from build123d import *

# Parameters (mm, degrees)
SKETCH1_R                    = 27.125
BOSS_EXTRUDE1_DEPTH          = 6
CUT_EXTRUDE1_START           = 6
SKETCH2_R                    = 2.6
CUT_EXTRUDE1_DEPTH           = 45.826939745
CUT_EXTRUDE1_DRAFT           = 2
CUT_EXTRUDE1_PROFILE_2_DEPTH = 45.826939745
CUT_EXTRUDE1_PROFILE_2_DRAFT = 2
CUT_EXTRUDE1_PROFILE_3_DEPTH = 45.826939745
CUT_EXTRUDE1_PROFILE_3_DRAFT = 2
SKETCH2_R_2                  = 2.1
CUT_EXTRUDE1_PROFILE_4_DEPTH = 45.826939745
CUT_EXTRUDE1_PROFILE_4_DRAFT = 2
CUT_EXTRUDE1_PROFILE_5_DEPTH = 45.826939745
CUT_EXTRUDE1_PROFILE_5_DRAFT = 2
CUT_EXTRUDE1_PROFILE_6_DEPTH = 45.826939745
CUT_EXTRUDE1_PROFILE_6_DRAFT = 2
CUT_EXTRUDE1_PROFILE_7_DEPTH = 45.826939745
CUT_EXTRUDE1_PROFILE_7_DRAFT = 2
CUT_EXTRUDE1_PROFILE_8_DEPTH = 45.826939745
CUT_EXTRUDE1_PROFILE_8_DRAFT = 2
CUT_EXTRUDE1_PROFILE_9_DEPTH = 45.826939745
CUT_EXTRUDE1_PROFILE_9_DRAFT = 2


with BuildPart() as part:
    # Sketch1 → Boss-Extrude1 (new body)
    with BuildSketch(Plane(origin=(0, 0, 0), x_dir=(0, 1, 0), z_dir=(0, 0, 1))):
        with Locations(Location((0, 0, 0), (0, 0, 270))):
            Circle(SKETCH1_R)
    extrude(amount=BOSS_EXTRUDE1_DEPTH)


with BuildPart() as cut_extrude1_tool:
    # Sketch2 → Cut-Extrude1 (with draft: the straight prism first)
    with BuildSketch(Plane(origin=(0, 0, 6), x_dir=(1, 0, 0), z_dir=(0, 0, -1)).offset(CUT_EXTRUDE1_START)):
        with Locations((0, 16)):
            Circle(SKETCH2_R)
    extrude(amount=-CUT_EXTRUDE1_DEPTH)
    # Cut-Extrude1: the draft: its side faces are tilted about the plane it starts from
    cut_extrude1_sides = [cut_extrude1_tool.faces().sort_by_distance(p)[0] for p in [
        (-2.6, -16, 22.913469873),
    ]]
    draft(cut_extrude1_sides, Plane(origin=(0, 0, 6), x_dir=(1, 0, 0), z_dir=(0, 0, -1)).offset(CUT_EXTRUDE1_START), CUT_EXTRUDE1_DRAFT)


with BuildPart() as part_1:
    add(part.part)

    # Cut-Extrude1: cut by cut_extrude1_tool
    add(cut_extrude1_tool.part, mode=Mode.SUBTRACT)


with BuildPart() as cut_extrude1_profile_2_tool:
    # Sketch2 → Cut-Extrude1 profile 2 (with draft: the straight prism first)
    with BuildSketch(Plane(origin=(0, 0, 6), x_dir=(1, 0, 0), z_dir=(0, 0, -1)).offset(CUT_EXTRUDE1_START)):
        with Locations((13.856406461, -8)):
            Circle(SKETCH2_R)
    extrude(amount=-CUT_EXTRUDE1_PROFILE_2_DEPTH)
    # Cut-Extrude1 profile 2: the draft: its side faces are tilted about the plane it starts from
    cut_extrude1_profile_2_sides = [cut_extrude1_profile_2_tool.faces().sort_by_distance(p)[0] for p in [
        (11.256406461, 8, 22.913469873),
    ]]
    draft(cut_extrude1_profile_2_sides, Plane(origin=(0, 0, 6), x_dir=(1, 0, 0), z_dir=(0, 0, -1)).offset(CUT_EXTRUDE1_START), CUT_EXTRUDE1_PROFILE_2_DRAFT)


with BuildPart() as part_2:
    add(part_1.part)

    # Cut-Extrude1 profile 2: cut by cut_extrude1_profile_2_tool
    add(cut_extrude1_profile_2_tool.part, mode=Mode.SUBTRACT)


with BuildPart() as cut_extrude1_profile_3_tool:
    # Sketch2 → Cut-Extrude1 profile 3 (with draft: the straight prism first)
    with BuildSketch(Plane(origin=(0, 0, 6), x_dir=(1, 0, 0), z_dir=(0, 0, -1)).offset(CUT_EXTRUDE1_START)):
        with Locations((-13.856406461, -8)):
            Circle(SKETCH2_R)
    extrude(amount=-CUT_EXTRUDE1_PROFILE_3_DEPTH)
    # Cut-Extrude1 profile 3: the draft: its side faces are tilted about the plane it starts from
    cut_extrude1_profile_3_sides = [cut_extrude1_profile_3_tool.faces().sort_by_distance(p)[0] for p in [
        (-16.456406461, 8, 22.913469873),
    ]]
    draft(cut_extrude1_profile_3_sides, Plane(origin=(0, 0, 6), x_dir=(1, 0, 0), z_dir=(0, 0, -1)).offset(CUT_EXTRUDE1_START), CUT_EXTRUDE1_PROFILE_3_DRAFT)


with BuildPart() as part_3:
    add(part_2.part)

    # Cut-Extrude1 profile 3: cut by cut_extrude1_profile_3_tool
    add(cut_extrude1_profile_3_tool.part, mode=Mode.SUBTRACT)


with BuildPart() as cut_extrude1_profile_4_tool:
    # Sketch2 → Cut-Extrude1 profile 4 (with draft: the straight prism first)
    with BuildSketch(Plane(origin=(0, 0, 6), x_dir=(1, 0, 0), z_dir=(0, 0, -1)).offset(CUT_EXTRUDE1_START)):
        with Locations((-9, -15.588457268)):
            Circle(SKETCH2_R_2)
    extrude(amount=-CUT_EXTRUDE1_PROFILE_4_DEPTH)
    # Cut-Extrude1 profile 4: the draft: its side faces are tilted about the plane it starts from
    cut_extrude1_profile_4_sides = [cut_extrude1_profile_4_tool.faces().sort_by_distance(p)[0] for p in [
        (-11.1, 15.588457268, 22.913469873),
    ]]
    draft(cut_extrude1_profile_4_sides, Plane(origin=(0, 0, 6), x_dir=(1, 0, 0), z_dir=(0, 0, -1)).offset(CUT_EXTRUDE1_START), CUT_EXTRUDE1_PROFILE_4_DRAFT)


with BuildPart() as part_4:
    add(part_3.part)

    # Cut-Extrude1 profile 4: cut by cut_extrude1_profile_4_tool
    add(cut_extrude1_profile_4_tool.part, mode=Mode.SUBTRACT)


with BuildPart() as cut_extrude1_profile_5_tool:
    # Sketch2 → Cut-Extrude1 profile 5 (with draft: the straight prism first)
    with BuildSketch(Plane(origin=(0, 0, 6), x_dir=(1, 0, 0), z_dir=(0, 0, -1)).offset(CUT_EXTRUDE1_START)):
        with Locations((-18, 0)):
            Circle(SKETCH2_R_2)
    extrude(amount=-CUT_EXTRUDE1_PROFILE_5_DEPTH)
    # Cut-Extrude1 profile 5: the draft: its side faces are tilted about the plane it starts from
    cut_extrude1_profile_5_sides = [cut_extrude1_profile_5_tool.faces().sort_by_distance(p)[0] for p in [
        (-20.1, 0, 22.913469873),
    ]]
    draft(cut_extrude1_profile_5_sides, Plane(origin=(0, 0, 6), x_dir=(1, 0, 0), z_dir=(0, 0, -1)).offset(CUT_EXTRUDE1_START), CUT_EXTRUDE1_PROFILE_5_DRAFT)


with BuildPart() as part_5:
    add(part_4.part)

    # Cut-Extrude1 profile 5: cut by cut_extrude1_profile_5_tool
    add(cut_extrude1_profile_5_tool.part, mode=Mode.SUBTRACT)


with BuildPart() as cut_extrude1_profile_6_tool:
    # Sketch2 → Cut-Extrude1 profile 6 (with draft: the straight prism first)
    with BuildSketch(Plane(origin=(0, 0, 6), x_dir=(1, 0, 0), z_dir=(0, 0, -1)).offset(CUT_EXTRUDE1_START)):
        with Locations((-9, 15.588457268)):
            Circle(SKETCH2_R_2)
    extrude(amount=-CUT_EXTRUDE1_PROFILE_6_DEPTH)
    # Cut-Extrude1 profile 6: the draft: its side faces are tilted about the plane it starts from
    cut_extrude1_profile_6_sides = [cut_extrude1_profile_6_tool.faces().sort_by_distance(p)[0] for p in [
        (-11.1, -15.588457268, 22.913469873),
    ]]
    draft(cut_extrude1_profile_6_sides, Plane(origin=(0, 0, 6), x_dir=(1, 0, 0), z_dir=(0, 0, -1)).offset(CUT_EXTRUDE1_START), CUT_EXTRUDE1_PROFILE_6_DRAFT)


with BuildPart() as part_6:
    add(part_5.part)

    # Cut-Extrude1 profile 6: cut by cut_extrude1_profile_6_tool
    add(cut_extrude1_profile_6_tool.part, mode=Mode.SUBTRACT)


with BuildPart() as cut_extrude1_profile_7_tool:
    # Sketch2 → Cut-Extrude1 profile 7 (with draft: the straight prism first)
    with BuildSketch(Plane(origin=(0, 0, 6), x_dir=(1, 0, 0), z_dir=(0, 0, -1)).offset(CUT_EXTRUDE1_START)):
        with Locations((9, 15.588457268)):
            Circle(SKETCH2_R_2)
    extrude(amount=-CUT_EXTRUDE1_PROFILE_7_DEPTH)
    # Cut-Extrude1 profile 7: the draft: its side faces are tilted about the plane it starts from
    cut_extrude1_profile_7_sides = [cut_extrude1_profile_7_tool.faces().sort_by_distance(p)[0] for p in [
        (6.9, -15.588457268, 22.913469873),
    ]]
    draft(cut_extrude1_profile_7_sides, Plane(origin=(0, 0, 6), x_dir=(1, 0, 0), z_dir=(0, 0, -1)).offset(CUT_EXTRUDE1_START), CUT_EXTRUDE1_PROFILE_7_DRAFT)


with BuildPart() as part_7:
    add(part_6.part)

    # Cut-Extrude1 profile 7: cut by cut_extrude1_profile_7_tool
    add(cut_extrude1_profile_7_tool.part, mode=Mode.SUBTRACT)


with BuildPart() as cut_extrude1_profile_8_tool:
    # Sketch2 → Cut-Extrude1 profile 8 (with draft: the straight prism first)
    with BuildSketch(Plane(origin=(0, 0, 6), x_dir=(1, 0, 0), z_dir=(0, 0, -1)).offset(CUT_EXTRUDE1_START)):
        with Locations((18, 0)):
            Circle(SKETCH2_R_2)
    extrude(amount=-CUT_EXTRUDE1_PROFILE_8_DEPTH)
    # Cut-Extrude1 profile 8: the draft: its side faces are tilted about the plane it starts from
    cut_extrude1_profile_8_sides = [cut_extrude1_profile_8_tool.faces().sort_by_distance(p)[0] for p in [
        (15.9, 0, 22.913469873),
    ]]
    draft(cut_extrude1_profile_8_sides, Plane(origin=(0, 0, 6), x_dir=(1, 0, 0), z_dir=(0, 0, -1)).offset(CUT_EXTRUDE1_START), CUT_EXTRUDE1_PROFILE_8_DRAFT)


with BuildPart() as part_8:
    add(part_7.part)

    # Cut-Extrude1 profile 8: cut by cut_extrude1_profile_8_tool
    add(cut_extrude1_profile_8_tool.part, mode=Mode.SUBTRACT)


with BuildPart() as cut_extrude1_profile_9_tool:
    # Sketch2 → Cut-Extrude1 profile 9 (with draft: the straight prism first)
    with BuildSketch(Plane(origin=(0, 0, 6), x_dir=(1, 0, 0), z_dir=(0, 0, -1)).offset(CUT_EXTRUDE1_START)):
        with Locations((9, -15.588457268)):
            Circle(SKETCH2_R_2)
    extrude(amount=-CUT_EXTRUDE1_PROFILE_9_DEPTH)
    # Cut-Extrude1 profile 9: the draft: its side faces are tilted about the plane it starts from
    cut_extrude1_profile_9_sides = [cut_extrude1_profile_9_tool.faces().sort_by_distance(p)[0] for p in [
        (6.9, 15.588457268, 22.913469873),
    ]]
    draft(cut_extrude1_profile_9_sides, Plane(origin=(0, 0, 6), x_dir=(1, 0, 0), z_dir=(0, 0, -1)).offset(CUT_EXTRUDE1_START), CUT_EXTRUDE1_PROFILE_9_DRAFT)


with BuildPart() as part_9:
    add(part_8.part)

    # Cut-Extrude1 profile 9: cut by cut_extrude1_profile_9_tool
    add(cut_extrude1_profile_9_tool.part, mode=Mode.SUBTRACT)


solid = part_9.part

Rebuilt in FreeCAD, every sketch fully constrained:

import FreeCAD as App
import Part
import Sketcher


def faces_at(feature, points):
    """Names of the faces that lie closest to the given points."""
    faces = feature.Shape.Faces
    near = lambda p: min(range(len(faces)), key=lambda i: faces[i].distToShape(Part.Vertex(*p))[0])
    return sorted({f"Face{near(p) + 1}" for p in points})

doc = App.newDocument("Part")
body = doc.addObject("PartDesign::Body", "Body")

sketch1 = body.newObject("Sketcher::SketchObject", "Sketch")
sketch1.AttachmentSupport = (doc.getObject("XY_Plane"), [""])
sketch1.MapMode = "FlatFace"
sketch1.addGeometry(Part.Circle(App.Vector(0, 0, 0), App.Vector(0, 0, 1), 27), False)
sketch1.addConstraint([
    Sketcher.Constraint("Coincident", 0, 3, -1, 1),
    Sketcher.Constraint("Diameter", 0, 54.25),
])
pad1 = body.newObject("PartDesign::Pad", "Pad")
pad1.Profile = sketch1
pad1.Length = 6
body2 = doc.addObject("PartDesign::Body", "Body001")

sketch2 = body2.newObject("Sketcher::SketchObject", "Sketch001")
sketch2.AttachmentSupport = (doc.getObject("XY_Plane001"), [""])
sketch2.MapMode = "FlatFace"
sketch2.addGeometry(Part.Circle(App.Vector(0, -16, 0), App.Vector(0, 0, 1), 2.6), False)
sketch2.addConstraint([
    Sketcher.Constraint("PointOnObject", 0, 3, -2),
    Sketcher.Constraint("Diameter", 0, 5.2),
    Sketcher.Constraint("DistanceY", 0, 3, -1, 1, 16.0),
])
pad2 = body2.newObject("PartDesign::Pad", "Pad001")
pad2.Profile = sketch2
pad2.Length = 45.82694
doc.recompute()

draft = body2.newObject("PartDesign::Draft", "Draft")
draft.Base = (pad2, faces_at(pad2, [(-2.6, -16, 22.913)]))
draft.NeutralPlane = (doc.getObject("XY_Plane001"), [""])
draft.Angle = 2
draft.Reversed = True
doc.recompute()

boolean = body.newObject("PartDesign::Boolean", "Boolean")
boolean.Type = "Cut"
boolean.addObjects([body2])
body3 = doc.addObject("PartDesign::Body", "Body002")

sketch3 = body3.newObject("Sketcher::SketchObject", "Sketch002")
sketch3.AttachmentSupport = (doc.getObject("XY_Plane002"), [""])
sketch3.MapMode = "FlatFace"
sketch3.addGeometry(Part.Circle(App.Vector(13.9, 8, 0), App.Vector(0, 0, 1), 2.6), False)
sketch3.addConstraint([
    Sketcher.Constraint("Diameter", 0, 5.2),
    Sketcher.Constraint("DistanceY", -1, 1, 0, 3, 8.0),
    Sketcher.Constraint("DistanceX", -1, 1, 0, 3, 13.856406),
])
pad3 = body3.newObject("PartDesign::Pad", "Pad002")
pad3.Profile = sketch3
pad3.Length = 45.82694
doc.recompute()

draft2 = body3.newObject("PartDesign::Draft", "Draft001")
draft2.Base = (pad3, faces_at(pad3, [(11.256, 8, 22.913)]))
draft2.NeutralPlane = (doc.getObject("XY_Plane002"), [""])
draft2.Angle = 2
draft2.Reversed = True
doc.recompute()

boolean2 = body.newObject("PartDesign::Boolean", "Boolean001")
boolean2.Type = "Cut"
boolean2.addObjects([body3])
body4 = doc.addObject("PartDesign::Body", "Body003")

sketch4 = body4.newObject("Sketcher::SketchObject", "Sketch003")
sketch4.AttachmentSupport = (doc.getObject("XY_Plane003"), [""])
sketch4.MapMode = "FlatFace"
sketch4.addGeometry(Part.Circle(App.Vector(-13.9, 8, 0), App.Vector(0, 0, 1), 2.6), False)
sketch4.addConstraint([
    Sketcher.Constraint("Diameter", 0, 5.2),
    Sketcher.Constraint("DistanceY", -1, 1, 0, 3, 8.0),
    Sketcher.Constraint("DistanceX", 0, 3, -1, 1, 13.856406),
])
pad4 = body4.newObject("PartDesign::Pad", "Pad003")
pad4.Profile = sketch4
pad4.Length = 45.82694
doc.recompute()

draft3 = body4.newObject("PartDesign::Draft", "Draft002")
draft3.Base = (pad4, faces_at(pad4, [(-16.456, 8, 22.913)]))
draft3.NeutralPlane = (doc.getObject("XY_Plane003"), [""])
draft3.Angle = 2
draft3.Reversed = True
doc.recompute()

boolean3 = body.newObject("PartDesign::Boolean", "Boolean002")
boolean3.Type = "Cut"
boolean3.addObjects([body4])
body5 = doc.addObject("PartDesign::Body", "Body004")

sketch5 = body5.newObject("Sketcher::SketchObject", "Sketch004")
sketch5.AttachmentSupport = (doc.getObject("XY_Plane004"), [""])
sketch5.MapMode = "FlatFace"
sketch5.addGeometry(Part.Circle(App.Vector(-9, 15.6, 0), App.Vector(0, 0, 1), 2.1), False)
sketch5.addConstraint([
    Sketcher.Constraint("Diameter", 0, 4.2),
    Sketcher.Constraint("DistanceX", 0, 3, -1, 1, 9.0),
    Sketcher.Constraint("DistanceY", -1, 1, 0, 3, 15.588457),
])
pad5 = body5.newObject("PartDesign::Pad", "Pad004")
pad5.Profile = sketch5
pad5.Length = 45.82694
doc.recompute()

draft4 = body5.newObject("PartDesign::Draft", "Draft003")
draft4.Base = (pad5, faces_at(pad5, [(-11.1, 15.588, 22.913)]))
draft4.NeutralPlane = (doc.getObject("XY_Plane004"), [""])
draft4.Angle = 2
draft4.Reversed = True
doc.recompute()

boolean4 = body.newObject("PartDesign::Boolean", "Boolean003")
boolean4.Type = "Cut"
boolean4.addObjects([body5])
body6 = doc.addObject("PartDesign::Body", "Body005")

sketch6 = body6.newObject("Sketcher::SketchObject", "Sketch005")
sketch6.AttachmentSupport = (doc.getObject("XY_Plane005"), [""])
sketch6.MapMode = "FlatFace"
sketch6.addGeometry(Part.Circle(App.Vector(-18, 0, 0), App.Vector(0, 0, 1), 2.1), False)
sketch6.addConstraint([
    Sketcher.Constraint("PointOnObject", 0, 3, -1),
    Sketcher.Constraint("Diameter", 0, 4.2),
    Sketcher.Constraint("DistanceX", 0, 3, -1, 1, 18.0),
])
pad6 = body6.newObject("PartDesign::Pad", "Pad005")
pad6.Profile = sketch6
pad6.Length = 45.82694
doc.recompute()

draft5 = body6.newObject("PartDesign::Draft", "Draft004")
draft5.Base = (pad6, faces_at(pad6, [(-20.1, 0, 22.913)]))
draft5.NeutralPlane = (doc.getObject("XY_Plane005"), [""])
draft5.Angle = 2
draft5.Reversed = True
doc.recompute()

boolean5 = body.newObject("PartDesign::Boolean", "Boolean004")
boolean5.Type = "Cut"
boolean5.addObjects([body6])
body7 = doc.addObject("PartDesign::Body", "Body006")

sketch7 = body7.newObject("Sketcher::SketchObject", "Sketch006")
sketch7.AttachmentSupport = (doc.getObject("XY_Plane006"), [""])
sketch7.MapMode = "FlatFace"
sketch7.addGeometry(Part.Circle(App.Vector(-9, -15.6, 0), App.Vector(0, 0, 1), 2.1), False)
sketch7.addConstraint([
    Sketcher.Constraint("Diameter", 0, 4.2),
    Sketcher.Constraint("DistanceX", 0, 3, -1, 1, 9.0),
    Sketcher.Constraint("DistanceY", 0, 3, -1, 1, 15.588457),
])
pad7 = body7.newObject("PartDesign::Pad", "Pad006")
pad7.Profile = sketch7
pad7.Length = 45.82694
doc.recompute()

draft6 = body7.newObject("PartDesign::Draft", "Draft005")
draft6.Base = (pad7, faces_at(pad7, [(-11.1, -15.588, 22.913)]))
draft6.NeutralPlane = (doc.getObject("XY_Plane006"), [""])
draft6.Angle = 2
draft6.Reversed = True
doc.recompute()

boolean6 = body.newObject("PartDesign::Boolean", "Boolean005")
boolean6.Type = "Cut"
boolean6.addObjects([body7])
body8 = doc.addObject("PartDesign::Body", "Body007")

sketch8 = body8.newObject("Sketcher::SketchObject", "Sketch007")
sketch8.AttachmentSupport = (doc.getObject("XY_Plane007"), [""])
sketch8.MapMode = "FlatFace"
sketch8.addGeometry(Part.Circle(App.Vector(9, -15.6, 0), App.Vector(0, 0, 1), 2.1), False)
sketch8.addConstraint([
    Sketcher.Constraint("Diameter", 0, 4.2),
    Sketcher.Constraint("DistanceX", -1, 1, 0, 3, 9.0),
    Sketcher.Constraint("DistanceY", 0, 3, -1, 1, 15.588457),
])
pad8 = body8.newObject("PartDesign::Pad", "Pad007")
pad8.Profile = sketch8
pad8.Length = 45.82694
doc.recompute()

draft7 = body8.newObject("PartDesign::Draft", "Draft006")
draft7.Base = (pad8, faces_at(pad8, [(6.9, -15.588, 22.913)]))
draft7.NeutralPlane = (doc.getObject("XY_Plane007"), [""])
draft7.Angle = 2
draft7.Reversed = True
doc.recompute()

boolean7 = body.newObject("PartDesign::Boolean", "Boolean006")
boolean7.Type = "Cut"
boolean7.addObjects([body8])
body9 = doc.addObject("PartDesign::Body", "Body008")

sketch9 = body9.newObject("Sketcher::SketchObject", "Sketch008")
sketch9.AttachmentSupport = (doc.getObject("XY_Plane008"), [""])
sketch9.MapMode = "FlatFace"
sketch9.addGeometry(Part.Circle(App.Vector(18, 0, 0), App.Vector(0, 0, 1), 2.1), False)
sketch9.addConstraint([
    Sketcher.Constraint("PointOnObject", 0, 3, -1),
    Sketcher.Constraint("Diameter", 0, 4.2),
    Sketcher.Constraint("DistanceX", -1, 1, 0, 3, 18.0),
])
pad9 = body9.newObject("PartDesign::Pad", "Pad008")
pad9.Profile = sketch9
pad9.Length = 45.82694
doc.recompute()

draft8 = body9.newObject("PartDesign::Draft", "Draft007")
draft8.Base = (pad9, faces_at(pad9, [(15.9, 0, 22.913)]))
draft8.NeutralPlane = (doc.getObject("XY_Plane008"), [""])
draft8.Angle = 2
draft8.Reversed = True
doc.recompute()

boolean8 = body.newObject("PartDesign::Boolean", "Boolean007")
boolean8.Type = "Cut"
boolean8.addObjects([body9])
body10 = doc.addObject("PartDesign::Body", "Body009")

sketch10 = body10.newObject("Sketcher::SketchObject", "Sketch009")
sketch10.AttachmentSupport = (doc.getObject("XY_Plane009"), [""])
sketch10.MapMode = "FlatFace"
sketch10.addGeometry(Part.Circle(App.Vector(9, 15.6, 0), App.Vector(0, 0, 1), 2.1), False)
sketch10.addConstraint([
    Sketcher.Constraint("Diameter", 0, 4.2),
    Sketcher.Constraint("DistanceX", -1, 1, 0, 3, 9.0),
    Sketcher.Constraint("DistanceY", -1, 1, 0, 3, 15.588457),
])
pad10 = body10.newObject("PartDesign::Pad", "Pad009")
pad10.Profile = sketch10
pad10.Length = 45.82694
doc.recompute()

draft9 = body10.newObject("PartDesign::Draft", "Draft008")
draft9.Base = (pad10, faces_at(pad10, [(6.9, 15.588, 22.913)]))
draft9.NeutralPlane = (doc.getObject("XY_Plane009"), [""])
draft9.Angle = 2
draft9.Reversed = True
doc.recompute()

boolean9 = body.newObject("PartDesign::Boolean", "Boolean008")
boolean9.Type = "Cut"
boolean9.addObjects([body10])

doc.recompute()
